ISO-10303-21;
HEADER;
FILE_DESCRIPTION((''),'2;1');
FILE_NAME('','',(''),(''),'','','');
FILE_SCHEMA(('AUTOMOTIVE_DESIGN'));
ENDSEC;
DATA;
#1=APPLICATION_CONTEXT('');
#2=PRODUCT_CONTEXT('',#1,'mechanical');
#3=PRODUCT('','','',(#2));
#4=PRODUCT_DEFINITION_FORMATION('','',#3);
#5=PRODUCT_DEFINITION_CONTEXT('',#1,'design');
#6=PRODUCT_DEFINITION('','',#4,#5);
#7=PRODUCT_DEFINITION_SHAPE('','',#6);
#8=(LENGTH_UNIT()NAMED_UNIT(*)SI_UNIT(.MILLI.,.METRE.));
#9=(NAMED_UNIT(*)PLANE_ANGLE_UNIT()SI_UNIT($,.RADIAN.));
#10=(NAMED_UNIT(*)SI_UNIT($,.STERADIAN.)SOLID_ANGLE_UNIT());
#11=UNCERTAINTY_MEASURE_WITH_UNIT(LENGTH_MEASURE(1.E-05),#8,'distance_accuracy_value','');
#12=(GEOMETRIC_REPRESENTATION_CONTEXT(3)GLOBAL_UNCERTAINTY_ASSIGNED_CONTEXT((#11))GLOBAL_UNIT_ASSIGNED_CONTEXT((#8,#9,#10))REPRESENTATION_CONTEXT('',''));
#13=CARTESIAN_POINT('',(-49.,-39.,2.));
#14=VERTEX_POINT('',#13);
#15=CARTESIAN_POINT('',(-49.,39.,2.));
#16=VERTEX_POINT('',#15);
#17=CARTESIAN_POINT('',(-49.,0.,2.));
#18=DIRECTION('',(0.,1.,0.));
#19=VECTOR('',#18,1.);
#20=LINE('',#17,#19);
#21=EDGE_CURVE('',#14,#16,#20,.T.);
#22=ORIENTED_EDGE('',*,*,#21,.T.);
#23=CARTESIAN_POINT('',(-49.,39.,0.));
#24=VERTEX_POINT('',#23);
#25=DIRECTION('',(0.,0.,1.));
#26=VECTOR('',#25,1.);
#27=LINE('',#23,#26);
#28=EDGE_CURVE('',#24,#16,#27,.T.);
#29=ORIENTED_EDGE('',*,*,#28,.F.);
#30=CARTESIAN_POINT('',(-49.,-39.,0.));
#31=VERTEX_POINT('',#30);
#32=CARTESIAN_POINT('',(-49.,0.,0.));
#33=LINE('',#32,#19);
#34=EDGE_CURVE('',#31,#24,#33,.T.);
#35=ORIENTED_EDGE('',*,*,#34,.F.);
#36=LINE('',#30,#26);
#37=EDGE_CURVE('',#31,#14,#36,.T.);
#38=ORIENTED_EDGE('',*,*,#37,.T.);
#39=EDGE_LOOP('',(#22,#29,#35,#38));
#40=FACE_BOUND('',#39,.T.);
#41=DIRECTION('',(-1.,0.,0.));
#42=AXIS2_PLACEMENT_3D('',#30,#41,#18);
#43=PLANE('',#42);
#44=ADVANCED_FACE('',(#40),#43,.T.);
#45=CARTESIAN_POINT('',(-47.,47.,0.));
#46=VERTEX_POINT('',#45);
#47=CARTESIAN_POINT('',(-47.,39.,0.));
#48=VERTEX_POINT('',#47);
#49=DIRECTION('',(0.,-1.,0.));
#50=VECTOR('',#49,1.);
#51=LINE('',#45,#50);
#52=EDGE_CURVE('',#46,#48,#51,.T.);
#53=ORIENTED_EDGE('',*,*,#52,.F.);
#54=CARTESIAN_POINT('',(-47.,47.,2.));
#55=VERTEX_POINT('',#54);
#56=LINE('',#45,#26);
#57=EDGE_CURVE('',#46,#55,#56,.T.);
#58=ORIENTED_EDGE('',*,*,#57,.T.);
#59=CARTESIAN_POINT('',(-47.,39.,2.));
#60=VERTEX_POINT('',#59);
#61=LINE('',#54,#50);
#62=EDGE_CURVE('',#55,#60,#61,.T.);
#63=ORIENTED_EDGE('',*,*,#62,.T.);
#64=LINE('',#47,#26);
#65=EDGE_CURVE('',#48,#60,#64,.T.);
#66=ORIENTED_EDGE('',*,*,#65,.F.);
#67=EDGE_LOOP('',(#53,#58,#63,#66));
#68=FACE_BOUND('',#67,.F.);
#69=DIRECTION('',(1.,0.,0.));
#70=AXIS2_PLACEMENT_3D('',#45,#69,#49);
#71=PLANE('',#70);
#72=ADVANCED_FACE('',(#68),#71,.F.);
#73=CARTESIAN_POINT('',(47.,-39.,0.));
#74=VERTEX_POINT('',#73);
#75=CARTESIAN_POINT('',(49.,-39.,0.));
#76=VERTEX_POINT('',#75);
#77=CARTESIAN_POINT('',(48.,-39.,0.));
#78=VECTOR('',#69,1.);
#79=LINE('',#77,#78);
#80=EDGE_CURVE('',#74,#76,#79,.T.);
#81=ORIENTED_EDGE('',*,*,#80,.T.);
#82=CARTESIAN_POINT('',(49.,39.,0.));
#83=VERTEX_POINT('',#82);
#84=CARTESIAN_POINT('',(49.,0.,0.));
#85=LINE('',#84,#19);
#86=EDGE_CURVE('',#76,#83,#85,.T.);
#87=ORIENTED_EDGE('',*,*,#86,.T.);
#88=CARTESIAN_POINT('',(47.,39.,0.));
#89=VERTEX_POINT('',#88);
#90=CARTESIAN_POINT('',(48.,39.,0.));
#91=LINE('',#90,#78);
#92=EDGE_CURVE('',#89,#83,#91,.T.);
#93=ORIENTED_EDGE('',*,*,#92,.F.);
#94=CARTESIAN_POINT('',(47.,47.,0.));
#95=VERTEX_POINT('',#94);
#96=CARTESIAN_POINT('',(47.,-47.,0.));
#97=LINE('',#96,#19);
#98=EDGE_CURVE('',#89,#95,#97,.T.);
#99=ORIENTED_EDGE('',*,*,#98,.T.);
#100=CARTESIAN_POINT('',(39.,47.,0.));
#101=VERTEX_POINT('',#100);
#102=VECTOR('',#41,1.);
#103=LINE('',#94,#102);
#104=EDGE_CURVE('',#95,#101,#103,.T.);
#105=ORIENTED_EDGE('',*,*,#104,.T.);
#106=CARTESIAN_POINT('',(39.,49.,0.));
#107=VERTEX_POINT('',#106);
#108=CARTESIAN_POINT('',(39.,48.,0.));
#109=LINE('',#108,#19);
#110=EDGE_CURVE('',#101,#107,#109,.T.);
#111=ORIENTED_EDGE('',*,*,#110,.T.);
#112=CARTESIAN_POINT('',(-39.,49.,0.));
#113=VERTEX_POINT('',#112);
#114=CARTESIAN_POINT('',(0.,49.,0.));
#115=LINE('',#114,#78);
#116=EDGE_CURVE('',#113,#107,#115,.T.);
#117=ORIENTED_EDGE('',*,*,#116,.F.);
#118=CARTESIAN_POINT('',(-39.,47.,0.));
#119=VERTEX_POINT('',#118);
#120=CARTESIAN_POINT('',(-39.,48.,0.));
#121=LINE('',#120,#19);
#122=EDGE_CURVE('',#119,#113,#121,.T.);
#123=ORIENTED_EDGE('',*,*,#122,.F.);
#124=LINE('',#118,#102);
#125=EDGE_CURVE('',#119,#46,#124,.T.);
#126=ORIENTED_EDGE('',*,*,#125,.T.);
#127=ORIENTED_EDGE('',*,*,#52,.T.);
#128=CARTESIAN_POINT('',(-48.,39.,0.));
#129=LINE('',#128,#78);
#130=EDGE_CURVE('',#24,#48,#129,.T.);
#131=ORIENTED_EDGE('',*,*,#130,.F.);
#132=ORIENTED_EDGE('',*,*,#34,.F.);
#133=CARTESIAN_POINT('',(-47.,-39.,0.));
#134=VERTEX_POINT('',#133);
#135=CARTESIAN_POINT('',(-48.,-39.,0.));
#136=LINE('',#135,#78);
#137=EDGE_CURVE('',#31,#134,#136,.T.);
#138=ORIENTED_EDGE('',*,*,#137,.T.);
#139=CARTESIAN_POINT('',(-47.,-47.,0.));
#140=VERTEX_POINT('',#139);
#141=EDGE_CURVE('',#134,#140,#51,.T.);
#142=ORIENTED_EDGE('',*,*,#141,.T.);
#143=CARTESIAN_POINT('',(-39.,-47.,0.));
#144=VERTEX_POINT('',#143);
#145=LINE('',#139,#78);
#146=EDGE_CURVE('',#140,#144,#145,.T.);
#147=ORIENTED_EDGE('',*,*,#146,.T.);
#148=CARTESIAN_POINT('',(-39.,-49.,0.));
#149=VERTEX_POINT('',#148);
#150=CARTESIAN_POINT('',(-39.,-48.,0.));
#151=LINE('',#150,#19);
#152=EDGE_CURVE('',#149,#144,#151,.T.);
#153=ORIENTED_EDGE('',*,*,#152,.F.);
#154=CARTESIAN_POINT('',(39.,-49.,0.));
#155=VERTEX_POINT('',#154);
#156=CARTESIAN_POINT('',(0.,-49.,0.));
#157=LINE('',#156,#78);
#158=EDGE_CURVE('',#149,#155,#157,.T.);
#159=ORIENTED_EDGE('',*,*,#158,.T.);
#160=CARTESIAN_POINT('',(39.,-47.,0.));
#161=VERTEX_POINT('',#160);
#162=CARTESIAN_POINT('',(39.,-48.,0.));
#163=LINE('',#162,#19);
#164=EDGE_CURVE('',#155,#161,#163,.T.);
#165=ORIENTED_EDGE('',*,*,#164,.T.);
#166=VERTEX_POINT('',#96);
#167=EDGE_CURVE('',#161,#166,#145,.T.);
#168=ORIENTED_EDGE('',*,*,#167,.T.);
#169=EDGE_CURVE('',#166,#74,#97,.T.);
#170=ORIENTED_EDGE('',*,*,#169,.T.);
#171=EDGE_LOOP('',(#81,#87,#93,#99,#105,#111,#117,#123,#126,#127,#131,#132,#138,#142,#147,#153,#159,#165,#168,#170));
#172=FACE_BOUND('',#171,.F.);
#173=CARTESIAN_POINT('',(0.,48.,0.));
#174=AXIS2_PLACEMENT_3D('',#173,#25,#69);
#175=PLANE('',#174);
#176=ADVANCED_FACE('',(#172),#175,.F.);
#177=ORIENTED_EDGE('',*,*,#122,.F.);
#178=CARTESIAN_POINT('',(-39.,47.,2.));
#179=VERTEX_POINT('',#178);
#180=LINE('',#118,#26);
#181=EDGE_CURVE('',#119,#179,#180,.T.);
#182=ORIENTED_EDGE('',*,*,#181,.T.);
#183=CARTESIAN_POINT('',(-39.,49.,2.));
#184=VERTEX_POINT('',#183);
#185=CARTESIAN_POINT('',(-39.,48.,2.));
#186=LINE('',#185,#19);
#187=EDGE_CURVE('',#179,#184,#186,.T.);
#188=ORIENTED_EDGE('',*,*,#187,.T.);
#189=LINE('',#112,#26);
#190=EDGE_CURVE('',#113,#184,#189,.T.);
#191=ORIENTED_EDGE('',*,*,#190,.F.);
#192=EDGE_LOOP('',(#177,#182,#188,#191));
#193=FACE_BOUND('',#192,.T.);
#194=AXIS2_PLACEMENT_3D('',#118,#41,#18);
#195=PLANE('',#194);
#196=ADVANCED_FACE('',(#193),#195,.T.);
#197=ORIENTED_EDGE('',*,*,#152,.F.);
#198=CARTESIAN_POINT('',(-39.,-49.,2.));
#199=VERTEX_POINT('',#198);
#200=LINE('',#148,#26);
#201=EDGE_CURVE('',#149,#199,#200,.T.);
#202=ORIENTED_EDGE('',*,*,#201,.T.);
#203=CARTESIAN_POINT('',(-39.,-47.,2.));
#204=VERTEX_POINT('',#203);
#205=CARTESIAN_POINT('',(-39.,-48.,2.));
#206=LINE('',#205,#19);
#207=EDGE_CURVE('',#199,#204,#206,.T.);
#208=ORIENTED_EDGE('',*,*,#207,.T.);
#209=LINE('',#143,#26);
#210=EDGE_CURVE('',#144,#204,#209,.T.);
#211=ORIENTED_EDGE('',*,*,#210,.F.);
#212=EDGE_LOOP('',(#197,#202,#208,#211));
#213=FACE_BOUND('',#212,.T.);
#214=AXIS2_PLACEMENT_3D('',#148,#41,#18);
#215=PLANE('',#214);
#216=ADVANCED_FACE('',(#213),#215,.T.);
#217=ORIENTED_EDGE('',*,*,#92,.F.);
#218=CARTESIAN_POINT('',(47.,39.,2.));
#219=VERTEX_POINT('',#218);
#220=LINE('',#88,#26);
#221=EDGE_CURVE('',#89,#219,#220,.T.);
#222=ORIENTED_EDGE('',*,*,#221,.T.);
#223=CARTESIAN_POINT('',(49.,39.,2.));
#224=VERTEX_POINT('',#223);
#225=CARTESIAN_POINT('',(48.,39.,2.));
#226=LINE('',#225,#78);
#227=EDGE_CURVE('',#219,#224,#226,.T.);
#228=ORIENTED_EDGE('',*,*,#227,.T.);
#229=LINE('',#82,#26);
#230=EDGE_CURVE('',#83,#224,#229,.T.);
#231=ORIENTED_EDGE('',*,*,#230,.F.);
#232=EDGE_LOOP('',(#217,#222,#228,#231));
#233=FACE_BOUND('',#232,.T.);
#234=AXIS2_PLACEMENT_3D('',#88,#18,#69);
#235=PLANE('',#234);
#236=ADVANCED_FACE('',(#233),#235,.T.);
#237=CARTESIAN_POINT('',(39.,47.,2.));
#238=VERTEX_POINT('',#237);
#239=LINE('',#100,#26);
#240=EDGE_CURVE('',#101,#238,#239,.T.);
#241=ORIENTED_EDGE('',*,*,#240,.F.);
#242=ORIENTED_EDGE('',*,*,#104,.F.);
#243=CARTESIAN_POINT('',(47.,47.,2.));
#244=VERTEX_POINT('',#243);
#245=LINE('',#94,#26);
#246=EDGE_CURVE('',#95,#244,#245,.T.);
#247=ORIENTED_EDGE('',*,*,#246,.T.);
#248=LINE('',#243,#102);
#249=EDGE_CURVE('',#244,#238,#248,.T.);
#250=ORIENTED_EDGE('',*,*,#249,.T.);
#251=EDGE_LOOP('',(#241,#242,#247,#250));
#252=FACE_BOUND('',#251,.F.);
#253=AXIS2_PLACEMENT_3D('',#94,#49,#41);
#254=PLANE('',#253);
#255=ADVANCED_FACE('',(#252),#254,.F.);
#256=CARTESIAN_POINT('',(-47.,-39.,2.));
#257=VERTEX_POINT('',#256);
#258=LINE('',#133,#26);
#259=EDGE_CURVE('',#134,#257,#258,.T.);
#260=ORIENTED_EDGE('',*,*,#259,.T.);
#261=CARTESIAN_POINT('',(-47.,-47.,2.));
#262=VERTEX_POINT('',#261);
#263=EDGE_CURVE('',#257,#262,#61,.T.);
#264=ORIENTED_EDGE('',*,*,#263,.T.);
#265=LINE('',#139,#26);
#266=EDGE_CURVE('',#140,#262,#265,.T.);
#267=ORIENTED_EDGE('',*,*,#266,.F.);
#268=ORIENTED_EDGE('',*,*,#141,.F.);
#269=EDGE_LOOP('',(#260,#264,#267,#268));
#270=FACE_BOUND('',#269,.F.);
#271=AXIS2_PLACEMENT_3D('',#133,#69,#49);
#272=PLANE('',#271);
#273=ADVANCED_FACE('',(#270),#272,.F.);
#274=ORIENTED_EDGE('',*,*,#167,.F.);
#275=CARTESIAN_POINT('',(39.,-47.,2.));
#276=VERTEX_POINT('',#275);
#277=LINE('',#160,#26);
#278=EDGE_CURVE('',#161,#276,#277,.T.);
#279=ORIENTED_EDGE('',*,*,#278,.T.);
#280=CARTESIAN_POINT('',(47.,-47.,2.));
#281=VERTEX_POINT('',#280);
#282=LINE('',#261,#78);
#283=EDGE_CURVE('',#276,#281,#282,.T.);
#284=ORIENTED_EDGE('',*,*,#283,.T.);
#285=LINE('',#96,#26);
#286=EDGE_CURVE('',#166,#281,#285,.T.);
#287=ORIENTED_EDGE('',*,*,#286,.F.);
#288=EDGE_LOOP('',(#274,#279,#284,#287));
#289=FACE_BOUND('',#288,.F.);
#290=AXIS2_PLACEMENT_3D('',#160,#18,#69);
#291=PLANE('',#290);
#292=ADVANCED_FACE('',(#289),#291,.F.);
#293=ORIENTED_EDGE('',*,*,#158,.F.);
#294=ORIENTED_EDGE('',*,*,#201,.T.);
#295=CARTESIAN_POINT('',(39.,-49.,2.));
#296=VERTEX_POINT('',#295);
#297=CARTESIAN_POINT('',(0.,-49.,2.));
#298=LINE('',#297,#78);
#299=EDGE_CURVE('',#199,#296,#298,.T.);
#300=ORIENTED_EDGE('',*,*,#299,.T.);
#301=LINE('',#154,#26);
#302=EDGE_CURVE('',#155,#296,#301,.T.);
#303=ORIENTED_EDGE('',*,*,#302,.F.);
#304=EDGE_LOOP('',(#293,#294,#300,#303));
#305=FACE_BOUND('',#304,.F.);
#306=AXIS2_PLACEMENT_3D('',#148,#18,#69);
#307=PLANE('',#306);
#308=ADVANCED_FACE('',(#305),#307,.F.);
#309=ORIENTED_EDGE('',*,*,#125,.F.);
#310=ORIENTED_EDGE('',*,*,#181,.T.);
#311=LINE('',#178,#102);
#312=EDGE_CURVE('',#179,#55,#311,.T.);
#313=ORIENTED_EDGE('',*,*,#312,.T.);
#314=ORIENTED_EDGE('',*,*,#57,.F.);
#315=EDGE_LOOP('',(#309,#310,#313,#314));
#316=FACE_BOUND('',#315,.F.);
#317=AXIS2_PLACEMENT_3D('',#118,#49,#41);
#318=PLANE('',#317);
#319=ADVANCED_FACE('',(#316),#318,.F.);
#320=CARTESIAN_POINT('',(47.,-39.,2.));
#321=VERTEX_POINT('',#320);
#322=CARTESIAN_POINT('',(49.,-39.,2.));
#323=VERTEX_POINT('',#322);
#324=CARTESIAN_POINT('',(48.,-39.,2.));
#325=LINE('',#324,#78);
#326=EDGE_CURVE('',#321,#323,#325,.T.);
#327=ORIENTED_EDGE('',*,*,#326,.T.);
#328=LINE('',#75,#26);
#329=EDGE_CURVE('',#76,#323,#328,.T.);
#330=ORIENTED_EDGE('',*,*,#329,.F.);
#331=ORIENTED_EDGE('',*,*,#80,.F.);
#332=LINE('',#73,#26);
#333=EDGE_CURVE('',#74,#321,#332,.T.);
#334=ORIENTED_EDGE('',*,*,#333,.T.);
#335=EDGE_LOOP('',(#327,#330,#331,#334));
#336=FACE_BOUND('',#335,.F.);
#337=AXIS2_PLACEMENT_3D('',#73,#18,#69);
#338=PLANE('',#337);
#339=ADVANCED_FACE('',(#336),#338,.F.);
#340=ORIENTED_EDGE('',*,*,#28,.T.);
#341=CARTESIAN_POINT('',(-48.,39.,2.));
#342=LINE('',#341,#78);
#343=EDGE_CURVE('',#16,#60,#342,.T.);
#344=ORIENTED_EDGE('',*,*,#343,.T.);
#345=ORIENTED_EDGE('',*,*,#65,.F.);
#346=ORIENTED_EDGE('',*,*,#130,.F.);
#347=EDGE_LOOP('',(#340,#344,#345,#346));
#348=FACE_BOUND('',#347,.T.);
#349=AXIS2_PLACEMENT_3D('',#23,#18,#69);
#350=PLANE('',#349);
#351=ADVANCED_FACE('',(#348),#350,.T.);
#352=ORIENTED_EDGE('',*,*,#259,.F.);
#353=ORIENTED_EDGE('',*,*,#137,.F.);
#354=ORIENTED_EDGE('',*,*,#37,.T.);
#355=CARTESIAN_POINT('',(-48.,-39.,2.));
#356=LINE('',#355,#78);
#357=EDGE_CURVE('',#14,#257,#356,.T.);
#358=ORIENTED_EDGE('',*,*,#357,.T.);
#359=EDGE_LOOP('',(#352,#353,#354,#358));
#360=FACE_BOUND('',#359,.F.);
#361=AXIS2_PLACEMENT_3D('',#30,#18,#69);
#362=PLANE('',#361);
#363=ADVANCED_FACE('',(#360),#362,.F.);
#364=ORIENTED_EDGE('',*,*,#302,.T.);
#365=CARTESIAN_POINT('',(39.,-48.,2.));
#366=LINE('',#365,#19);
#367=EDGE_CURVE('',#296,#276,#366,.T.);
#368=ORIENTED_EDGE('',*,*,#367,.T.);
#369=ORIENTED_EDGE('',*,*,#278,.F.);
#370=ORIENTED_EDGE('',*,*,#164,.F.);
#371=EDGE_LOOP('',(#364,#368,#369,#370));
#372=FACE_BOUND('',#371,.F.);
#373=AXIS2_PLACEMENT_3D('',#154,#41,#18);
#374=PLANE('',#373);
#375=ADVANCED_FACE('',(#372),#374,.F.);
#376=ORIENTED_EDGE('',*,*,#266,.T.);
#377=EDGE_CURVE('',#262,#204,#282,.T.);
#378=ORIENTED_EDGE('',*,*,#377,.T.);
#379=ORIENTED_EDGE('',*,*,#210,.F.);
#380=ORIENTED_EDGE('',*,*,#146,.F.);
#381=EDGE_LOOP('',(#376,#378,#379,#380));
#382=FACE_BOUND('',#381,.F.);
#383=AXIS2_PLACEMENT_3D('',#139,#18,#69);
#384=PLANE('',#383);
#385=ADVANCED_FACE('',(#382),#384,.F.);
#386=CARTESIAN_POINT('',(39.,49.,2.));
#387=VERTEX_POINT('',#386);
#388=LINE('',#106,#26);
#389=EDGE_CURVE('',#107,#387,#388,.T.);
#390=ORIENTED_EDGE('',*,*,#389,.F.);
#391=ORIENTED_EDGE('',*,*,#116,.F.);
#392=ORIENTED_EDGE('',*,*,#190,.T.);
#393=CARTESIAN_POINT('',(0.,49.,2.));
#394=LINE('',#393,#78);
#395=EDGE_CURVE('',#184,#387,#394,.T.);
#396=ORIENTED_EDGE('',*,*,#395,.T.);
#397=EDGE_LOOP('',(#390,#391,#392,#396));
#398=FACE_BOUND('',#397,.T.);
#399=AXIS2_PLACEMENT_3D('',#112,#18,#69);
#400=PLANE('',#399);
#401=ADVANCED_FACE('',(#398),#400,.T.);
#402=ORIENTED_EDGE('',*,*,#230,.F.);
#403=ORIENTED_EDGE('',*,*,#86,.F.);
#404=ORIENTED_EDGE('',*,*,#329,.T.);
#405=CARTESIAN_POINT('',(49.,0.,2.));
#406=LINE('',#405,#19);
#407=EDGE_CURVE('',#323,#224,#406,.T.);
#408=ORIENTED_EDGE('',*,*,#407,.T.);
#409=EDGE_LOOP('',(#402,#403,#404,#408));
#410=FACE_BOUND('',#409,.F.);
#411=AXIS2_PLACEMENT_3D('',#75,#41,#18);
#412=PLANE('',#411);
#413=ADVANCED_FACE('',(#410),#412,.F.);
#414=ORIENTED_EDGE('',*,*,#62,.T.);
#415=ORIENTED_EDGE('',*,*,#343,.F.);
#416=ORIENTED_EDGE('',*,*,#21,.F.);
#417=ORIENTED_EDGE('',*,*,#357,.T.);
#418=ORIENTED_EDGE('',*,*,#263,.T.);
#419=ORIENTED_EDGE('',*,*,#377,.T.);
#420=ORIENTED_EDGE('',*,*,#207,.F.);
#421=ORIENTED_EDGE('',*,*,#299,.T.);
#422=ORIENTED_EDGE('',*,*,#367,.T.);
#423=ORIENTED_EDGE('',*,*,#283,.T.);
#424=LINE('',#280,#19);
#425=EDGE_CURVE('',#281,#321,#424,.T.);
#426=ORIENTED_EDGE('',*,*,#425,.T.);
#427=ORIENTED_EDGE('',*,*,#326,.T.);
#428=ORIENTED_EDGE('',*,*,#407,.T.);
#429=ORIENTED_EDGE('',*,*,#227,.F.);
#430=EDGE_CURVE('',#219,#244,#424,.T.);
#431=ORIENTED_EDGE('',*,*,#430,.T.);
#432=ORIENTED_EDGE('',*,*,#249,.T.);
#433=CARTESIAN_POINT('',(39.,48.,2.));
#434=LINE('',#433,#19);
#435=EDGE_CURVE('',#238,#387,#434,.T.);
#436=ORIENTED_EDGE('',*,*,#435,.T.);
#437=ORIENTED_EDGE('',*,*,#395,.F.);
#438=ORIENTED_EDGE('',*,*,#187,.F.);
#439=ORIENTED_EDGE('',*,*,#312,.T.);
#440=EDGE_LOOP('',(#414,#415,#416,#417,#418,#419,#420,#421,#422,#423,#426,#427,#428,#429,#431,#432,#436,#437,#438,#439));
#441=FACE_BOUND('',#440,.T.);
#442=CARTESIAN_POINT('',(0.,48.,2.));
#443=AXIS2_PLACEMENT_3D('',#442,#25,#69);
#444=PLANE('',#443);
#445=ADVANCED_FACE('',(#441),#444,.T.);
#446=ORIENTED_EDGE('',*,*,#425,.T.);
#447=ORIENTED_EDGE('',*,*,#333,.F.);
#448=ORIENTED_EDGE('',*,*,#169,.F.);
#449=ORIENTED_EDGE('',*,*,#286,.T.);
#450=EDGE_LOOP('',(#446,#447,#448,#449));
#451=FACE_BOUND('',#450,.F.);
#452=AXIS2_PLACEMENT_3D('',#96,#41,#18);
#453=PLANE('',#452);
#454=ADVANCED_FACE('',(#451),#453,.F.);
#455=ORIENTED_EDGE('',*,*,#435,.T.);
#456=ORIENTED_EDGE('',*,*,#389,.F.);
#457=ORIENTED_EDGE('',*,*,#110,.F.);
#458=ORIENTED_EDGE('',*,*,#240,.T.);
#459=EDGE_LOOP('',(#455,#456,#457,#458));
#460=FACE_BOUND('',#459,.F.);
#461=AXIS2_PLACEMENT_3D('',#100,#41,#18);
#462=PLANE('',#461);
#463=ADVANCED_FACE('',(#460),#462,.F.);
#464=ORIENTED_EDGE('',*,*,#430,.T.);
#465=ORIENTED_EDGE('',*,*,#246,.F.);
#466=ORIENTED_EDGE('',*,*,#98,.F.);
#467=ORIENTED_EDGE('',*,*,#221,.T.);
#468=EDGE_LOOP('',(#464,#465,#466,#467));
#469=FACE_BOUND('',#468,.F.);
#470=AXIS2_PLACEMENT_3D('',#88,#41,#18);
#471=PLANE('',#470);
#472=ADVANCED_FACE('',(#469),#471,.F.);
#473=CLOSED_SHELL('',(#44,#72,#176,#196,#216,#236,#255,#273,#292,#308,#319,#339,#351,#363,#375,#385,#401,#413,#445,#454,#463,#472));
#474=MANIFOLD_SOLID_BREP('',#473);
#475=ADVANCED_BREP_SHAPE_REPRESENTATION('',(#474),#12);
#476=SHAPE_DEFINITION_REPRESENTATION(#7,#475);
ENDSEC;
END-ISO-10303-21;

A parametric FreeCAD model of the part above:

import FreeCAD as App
import Part
import Sketcher


def add_polygon(sketch, points):
    """Adds a closed chain of lines whose ends are joined by coincident constraints."""
    first, n = sketch.GeometryCount, len(points)
    for a, b in zip(points, points[1:] + points[:1]):
        sketch.addGeometry(Part.LineSegment(App.Vector(*a, 0), App.Vector(*b, 0)), False)
    for i in range(n):
        sketch.addConstraint(Sketcher.Constraint("Coincident", first + i, 2, first + (i + 1) % n, 1))

doc = App.newDocument("Part")
body = doc.addObject("PartDesign::Body", "Body")

sketch1 = body.newObject("Sketcher::SketchObject", "Sketch")
sketch1.AttachmentSupport = (doc.getObject("XY_Plane"), [""])
sketch1.MapMode = "FlatFace"
add_polygon(sketch1, [(-39, 49), (-39, 47), (-47, 47), (-47, 39), (-49, 39), (-49, -39), (-47, -39), (-47, -47), (-39, -47), (-39, -49), (39, -49), (39, -47), (47, -47), (47, -39), (49, -39), (49, 39), (47, 39), (47, 47), (39, 47), (39, 49)])
sketch1.addConstraint([
    Sketcher.Constraint("Vertical", 0),
    Sketcher.Constraint("Horizontal", 1),
    Sketcher.Constraint("Vertical", 2),
    Sketcher.Constraint("Horizontal", 3),
    Sketcher.Constraint("Vertical", 4),
    Sketcher.Constraint("Horizontal", 5),
    Sketcher.Constraint("Vertical", 6),
    Sketcher.Constraint("Horizontal", 7),
    Sketcher.Constraint("Vertical", 8),
    Sketcher.Constraint("Horizontal", 9),
    Sketcher.Constraint("Vertical", 10),
    Sketcher.Constraint("Horizontal", 11),
    Sketcher.Constraint("Vertical", 12),
    Sketcher.Constraint("Horizontal", 13),
    Sketcher.Constraint("Vertical", 14),
    Sketcher.Constraint("Horizontal", 15),
    Sketcher.Constraint("Vertical", 16),
    Sketcher.Constraint("Horizontal", 17),
    Sketcher.Constraint("Vertical", 18),
    Sketcher.Constraint("Horizontal", 19),
    Sketcher.Constraint("Symmetric", 0, 2, 10, 2, -1, 1),
    Sketcher.Constraint("Symmetric", 2, 2, 12, 2, -1, 1),
    Sketcher.Constraint("Symmetric", 4, 2, 14, 2, -1, 1),
    Sketcher.Constraint("Symmetric", 6, 2, 16, 2, -1, 1),
    Sketcher.Constraint("Symmetric", 8, 2, 18, 2, -1, 1),
    Sketcher.Constraint("Symmetric", 7, 2, 10, 2, -2),
    Sketcher.Constraint("Symmetric", 5, 2, 12, 2, -2),
    Sketcher.Constraint("Equal", 15, 0),
    Sketcher.Constraint("Equal", 17, 2),
    Sketcher.Constraint("Equal", 19, 4),
    Sketcher.Constraint("DistanceX", 1, 2, 1, 1, 8.0),
    Sketcher.Constraint("DistanceX", 3, 2, 3, 1, 2.0),
    Sketcher.Constraint("DistanceX", 9, 1, 9, 2, 78.0),
])
pad1 = body.newObject("PartDesign::Pad", "Pad")
pad1.Profile = sketch1
pad1.Length = 2

doc.recompute()
